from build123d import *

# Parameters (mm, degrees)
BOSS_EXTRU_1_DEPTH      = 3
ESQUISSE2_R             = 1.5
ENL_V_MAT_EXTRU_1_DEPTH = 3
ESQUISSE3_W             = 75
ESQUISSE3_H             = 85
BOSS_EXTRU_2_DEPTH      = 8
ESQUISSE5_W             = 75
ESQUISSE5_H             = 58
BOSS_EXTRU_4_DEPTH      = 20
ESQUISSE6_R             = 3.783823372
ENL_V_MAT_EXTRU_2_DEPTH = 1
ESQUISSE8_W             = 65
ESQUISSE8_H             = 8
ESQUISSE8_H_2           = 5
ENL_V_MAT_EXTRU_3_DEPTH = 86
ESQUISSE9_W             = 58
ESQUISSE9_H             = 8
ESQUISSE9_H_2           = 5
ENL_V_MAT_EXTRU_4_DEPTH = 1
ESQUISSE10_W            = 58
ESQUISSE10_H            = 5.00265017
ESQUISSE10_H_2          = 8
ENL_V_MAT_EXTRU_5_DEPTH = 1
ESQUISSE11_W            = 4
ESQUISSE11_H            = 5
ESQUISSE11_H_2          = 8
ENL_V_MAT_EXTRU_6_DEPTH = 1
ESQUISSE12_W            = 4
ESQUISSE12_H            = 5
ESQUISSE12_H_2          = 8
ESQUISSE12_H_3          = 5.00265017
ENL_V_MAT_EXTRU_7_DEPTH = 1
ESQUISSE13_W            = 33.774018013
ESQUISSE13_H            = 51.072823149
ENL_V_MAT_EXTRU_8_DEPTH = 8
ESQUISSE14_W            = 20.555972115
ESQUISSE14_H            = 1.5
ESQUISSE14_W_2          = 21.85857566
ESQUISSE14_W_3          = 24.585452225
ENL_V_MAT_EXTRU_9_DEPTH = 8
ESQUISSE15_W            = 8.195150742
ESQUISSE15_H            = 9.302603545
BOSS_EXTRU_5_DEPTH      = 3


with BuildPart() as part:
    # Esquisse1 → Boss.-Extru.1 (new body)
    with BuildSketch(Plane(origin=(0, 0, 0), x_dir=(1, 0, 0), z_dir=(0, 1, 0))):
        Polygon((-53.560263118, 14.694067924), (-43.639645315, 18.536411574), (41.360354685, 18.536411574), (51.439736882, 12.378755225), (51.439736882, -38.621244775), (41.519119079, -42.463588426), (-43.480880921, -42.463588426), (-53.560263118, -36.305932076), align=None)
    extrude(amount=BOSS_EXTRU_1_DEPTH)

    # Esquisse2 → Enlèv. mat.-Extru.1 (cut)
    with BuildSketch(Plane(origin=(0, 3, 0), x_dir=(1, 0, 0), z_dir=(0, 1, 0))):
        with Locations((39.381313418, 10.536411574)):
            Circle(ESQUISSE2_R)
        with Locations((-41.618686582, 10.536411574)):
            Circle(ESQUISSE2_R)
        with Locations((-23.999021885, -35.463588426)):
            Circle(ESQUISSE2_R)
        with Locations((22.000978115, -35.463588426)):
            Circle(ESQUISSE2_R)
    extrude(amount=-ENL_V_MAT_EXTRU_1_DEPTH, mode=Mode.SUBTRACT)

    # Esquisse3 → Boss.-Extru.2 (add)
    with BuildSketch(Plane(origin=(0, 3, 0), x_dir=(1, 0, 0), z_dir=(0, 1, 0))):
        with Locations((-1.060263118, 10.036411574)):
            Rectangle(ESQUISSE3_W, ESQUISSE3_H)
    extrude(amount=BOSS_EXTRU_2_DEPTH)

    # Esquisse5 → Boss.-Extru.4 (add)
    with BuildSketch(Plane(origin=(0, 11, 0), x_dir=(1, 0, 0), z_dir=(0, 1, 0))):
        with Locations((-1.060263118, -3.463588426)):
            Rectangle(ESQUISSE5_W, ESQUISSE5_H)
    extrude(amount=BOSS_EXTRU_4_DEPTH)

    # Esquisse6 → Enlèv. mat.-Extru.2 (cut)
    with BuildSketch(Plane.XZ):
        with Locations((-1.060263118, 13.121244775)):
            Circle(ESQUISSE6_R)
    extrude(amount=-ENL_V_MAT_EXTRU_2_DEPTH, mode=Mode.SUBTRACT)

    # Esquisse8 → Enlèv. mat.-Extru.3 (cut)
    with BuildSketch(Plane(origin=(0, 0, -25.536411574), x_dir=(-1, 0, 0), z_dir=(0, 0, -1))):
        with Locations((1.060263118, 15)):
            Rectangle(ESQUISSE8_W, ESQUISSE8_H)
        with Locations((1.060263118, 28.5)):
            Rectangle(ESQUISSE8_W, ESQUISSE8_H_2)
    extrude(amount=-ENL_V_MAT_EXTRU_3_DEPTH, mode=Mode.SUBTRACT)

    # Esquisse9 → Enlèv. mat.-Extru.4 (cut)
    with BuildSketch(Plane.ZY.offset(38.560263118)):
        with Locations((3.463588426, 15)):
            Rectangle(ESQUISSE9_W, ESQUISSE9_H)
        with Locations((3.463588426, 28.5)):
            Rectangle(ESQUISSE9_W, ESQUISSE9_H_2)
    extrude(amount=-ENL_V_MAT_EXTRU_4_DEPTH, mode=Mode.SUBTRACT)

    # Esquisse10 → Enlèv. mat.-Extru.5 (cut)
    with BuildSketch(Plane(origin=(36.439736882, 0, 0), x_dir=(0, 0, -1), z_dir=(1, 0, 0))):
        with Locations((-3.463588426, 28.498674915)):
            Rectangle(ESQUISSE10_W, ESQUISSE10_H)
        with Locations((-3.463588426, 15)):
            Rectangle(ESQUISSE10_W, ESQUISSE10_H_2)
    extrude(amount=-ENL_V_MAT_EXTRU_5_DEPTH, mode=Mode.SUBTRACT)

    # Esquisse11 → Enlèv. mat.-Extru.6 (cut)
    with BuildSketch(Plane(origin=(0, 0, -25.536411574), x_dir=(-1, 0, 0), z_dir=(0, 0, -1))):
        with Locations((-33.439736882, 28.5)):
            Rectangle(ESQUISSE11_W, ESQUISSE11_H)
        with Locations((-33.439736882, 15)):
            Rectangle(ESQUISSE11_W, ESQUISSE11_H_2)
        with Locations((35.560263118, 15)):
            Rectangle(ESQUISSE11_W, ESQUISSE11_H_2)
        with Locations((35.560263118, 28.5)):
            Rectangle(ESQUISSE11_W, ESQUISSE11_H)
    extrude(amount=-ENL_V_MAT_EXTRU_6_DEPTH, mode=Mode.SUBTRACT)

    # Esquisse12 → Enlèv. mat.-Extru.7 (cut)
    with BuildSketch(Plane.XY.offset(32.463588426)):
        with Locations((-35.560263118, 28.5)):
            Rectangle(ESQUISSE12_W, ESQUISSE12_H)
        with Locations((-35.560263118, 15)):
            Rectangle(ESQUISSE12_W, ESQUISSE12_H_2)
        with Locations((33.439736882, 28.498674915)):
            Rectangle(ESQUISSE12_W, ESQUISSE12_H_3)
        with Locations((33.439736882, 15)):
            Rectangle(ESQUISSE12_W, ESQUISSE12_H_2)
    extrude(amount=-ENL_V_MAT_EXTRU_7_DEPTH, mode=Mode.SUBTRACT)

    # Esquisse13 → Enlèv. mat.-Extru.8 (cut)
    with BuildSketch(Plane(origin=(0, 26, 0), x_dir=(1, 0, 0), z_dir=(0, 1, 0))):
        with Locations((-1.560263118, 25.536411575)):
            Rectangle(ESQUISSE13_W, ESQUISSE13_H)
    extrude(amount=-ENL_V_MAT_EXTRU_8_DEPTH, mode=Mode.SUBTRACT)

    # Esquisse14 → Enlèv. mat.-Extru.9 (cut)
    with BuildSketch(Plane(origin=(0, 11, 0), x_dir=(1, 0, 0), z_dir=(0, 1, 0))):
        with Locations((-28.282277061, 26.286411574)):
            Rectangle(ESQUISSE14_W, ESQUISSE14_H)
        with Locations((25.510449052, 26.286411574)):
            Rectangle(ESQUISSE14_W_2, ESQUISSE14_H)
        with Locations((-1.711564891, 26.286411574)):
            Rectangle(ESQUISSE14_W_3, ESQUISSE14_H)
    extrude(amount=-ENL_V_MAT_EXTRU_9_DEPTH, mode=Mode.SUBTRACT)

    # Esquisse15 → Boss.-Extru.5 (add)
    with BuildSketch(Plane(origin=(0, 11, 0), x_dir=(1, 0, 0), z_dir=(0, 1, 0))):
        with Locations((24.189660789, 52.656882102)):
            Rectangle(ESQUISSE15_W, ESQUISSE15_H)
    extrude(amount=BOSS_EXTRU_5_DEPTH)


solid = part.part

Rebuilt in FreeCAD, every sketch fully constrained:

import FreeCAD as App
import Part
import Sketcher

V = App.Vector
Q = App.Units.Quantity


def add_polygon(sketch, points):
    """Adds a closed chain of lines whose ends are joined by coincident constraints."""
    first, n = sketch.GeometryCount, len(points)
    for a, b in zip(points, points[1:] + points[:1]):
        sketch.addGeometry(Part.LineSegment(App.Vector(*a, 0), App.Vector(*b, 0)), False)
    for i in range(n):
        sketch.addConstraint(Sketcher.Constraint("Coincident", first + i, 2, first + (i + 1) % n, 1))

doc = App.newDocument("Part")
params = doc.addObject("Spreadsheet::Sheet", "Params")
for row, (alias, value) in enumerate([
    ("sketch1_width", "85 mm"),
    ("sketch1_height", "51 mm"),
    ("pad1_length", "3 mm"),
    ("sketch2_diameter", "3 mm"),
    ("pocket1_length", "3 mm"),
    ("sketch3_width", "75 mm"),
    ("sketch3_height", "85 mm"),
    ("pad2_length", "8 mm"),
    ("sketch4_width", "75 mm"),
    ("sketch4_height", "58 mm"),
    ("pad3_length", "20 mm"),
    ("pocket2_length", "1 mm"),
    ("sketch6_width", "65 mm"),
    ("sketch6_height", "8 mm"),
    ("sketch6_height2", "5 mm"),
    ("pocket3_length", "86 mm"),
    ("sketch7_width", "8 mm"),
    ("sketch7_width2", "5 mm"),
    ("sketch7_height", "58 mm"),
    ("pocket4_length", "1 mm"),
    ("sketch8_width", "8 mm"),
    ("sketch8_height", "58 mm"),
    ("pocket5_length", "1 mm"),
    ("sketch9_width", "4 mm"),
    ("sketch9_height", "5 mm"),
    ("sketch9_height2", "8 mm"),
    ("pocket6_length", "1 mm"),
    ("sketch10_width", "4 mm"),
    ("sketch10_height", "5 mm"),
    ("sketch10_height2", "8 mm"),
    ("pocket7_length", "1 mm"),
    ("pocket8_length", "8 mm"),
    ("sketch12_height", "1.5 mm"),
    ("pocket9_length", "8 mm"),
    ("pad4_length", "3 mm"),
], start=1):
    params.set(f"A{row}", alias)
    params.set(f"B{row}", "=" + value)
    params.setAlias(f"B{row}", alias)

body = doc.addObject("PartDesign::Body", "Body")

# Sketch on XZ plane
sketch1 = body.newObject("Sketcher::SketchObject", "Sketch")
sketch1.AttachmentSupport = (doc.getObject("XZ_Plane"), [""])
sketch1.MapMode = "FlatFace"
add_polygon(sketch1, [(-44, -19), (-54, -15), (-54, 36), (-43, 42), (42, 42), (51, 39), (51, -12), (41, -19)])  # lines 0-7
sketch1.addConstraint(Sketcher.Constraint("Vertical", 1))
sketch1.addConstraint(Sketcher.Constraint("Horizontal", 3))
sketch1.addConstraint(Sketcher.Constraint("Vertical", 5))
sketch1.addConstraint(Sketcher.Constraint("Horizontal", 7))
sketch1.addConstraint(Sketcher.Constraint("Parallel", 0, 4))
sketch1.addConstraint(Sketcher.Constraint("Parallel", 2, 6))
sketch1.addConstraint(Sketcher.Constraint("Equal", 3, 7))
sketch1.addConstraint(Sketcher.Constraint("Equal", 1, 5))
sketch1.addConstraint(Sketcher.Constraint("DistanceX", 3, 1, 3, 2, Q("85 mm")))
sketch1.addConstraint(Sketcher.Constraint("DistanceY", 1, 1, 1, 2, Q("51 mm")))
sketch1.addConstraint(Sketcher.Constraint("DistanceX", 1, 2, 4, 2, Q("105 mm")))
sketch1.addConstraint(Sketcher.Constraint("DistanceY", 6, 2, 3, 2, Q("61 mm")))
sketch1.addConstraint(Sketcher.Constraint("DistanceX", 2, 2, -1, 1, Q("43.480881 mm")))
sketch1.addConstraint(Sketcher.Constraint("DistanceY", -1, 1, 2, 2, Q("42.463588 mm")))
sketch1.addConstraint(Sketcher.Constraint("Distance", 0, Q("10.638715 mm")))
sketch1.addConstraint(Sketcher.Constraint("Distance", 2, Q("11.811464 mm")))
sketch1.setExpression("Constraints[16]", "Params.sketch1_width")
sketch1.setExpression("Constraints[17]", "Params.sketch1_height")
pad1 = body.newObject("PartDesign::Pad", "Pad")
pad1.Profile = sketch1
pad1.setExpression("Length", "Params.pad1_length")
pad1.Reversed = True

# Sketch on XZ plane
sketch2 = body.newObject("Sketcher::SketchObject", "Sketch001")
sketch2.AttachmentSupport = (doc.getObject("XZ_Plane"), [""])
sketch2.MapMode = "FlatFace"
sketch2.AttachmentOffset = App.Placement(V(0, 0, -3), App.Rotation())
sketch2.addGeometry(Part.Circle(V(39.4, -10.5, 0), V(0, 0, 1), 1.5), False)
sketch2.addGeometry(Part.Circle(V(-41.6, -10.5, 0), V(0, 0, 1), 1.5), False)
sketch2.addGeometry(Part.Circle(V(-24, 35.5, 0), V(0, 0, 1), 1.5), False)
sketch2.addGeometry(Part.Circle(V(22, 35.5, 0), V(0, 0, 1), 1.5), False)
sketch2.addConstraint(Sketcher.Constraint("Equal", 0, 1))
sketch2.addConstraint(Sketcher.Constraint("Equal", 1, 2))
sketch2.addConstraint(Sketcher.Constraint("Equal", 2, 3))
sketch2.addConstraint(Sketcher.Constraint("Horizontal", 0, 3, 1, 3))
sketch2.addConstraint(Sketcher.Constraint("Horizontal", 2, 3, 3, 3))
sketch2.addConstraint(Sketcher.Constraint("Diameter", 0, Q("3 mm")))
sketch2.addConstraint(Sketcher.Constraint("DistanceX", 1, 3, 0, 3, Q("81 mm")))
sketch2.addConstraint(Sketcher.Constraint("DistanceY", 1, 3, 2, 3, Q("46 mm")))
sketch2.addConstraint(Sketcher.Constraint("DistanceX", 2, 3, 3, 3, Q("46 mm")))
sketch2.addConstraint(Sketcher.Constraint("DistanceY", 0, 3, -1, 1, Q("10.536412 mm")))
sketch2.addConstraint(Sketcher.Constraint("DistanceX", 2, 3, -1, 1, Q("23.999022 mm")))
sketch2.addConstraint(Sketcher.Constraint("DistanceX", -1, 1, 0, 3, Q("39.381313 mm")))
sketch2.setExpression("Constraints[5]", "Params.sketch2_diameter")
pocket1 = body.newObject("PartDesign::Pocket", "Pocket")
pocket1.Profile = sketch2
pocket1.setExpression("Length", "Params.pocket1_length")
pocket1.Reversed = True

# Sketch on XZ plane
sketch3 = body.newObject("Sketcher::SketchObject", "Sketch002")
sketch3.AttachmentSupport = (doc.getObject("XZ_Plane"), [""])
sketch3.MapMode = "FlatFace"
sketch3.AttachmentOffset = App.Placement(V(0, 0, -3), App.Rotation())
add_polygon(sketch3, [(-39, -53), (-39, 32), (36, 32), (36, -53)])  # lines 0-3
sketch3.addConstraint(Sketcher.Constraint("Vertical", 0))
sketch3.addConstraint(Sketcher.Constraint("Horizontal", 1))
sketch3.addConstraint(Sketcher.Constraint("Vertical", 2))
sketch3.addConstraint(Sketcher.Constraint("Horizontal", 3))
sketch3.addConstraint(Sketcher.Constraint("DistanceX", 1, 1, 1, 2, Q("75 mm")))
sketch3.addConstraint(Sketcher.Constraint("DistanceY", 0, 1, 0, 2, Q("85 mm")))
sketch3.addConstraint(Sketcher.Constraint("DistanceY", -1, 1, 0, 2, Q("32.463588 mm")))
sketch3.addConstraint(Sketcher.Constraint("DistanceX", 0, 2, -1, 1, Q("38.560263 mm")))
sketch3.setExpression("Constraints[8]", "Params.sketch3_width")
sketch3.setExpression("Constraints[9]", "Params.sketch3_height")
pad2 = body.newObject("PartDesign::Pad", "Pad001")
pad2.Profile = sketch3
pad2.setExpression("Length", "Params.pad2_length")
pad2.Reversed = True

# Sketch on XZ plane
sketch4 = body.newObject("Sketcher::SketchObject", "Sketch003")
sketch4.AttachmentSupport = (doc.getObject("XZ_Plane"), [""])
sketch4.MapMode = "FlatFace"
sketch4.AttachmentOffset = App.Placement(V(0, 0, -11), App.Rotation())
add_polygon(sketch4, [(-39, -26), (-39, 32), (36, 32), (36, -26)])  # lines 0-3
sketch4.addConstraint(Sketcher.Constraint("Vertical", 0))
sketch4.addConstraint(Sketcher.Constraint("Horizontal", 1))
sketch4.addConstraint(Sketcher.Constraint("Vertical", 2))
sketch4.addConstraint(Sketcher.Constraint("Horizontal", 3))
sketch4.addConstraint(Sketcher.Constraint("DistanceX", 1, 1, 1, 2, Q("75 mm")))
sketch4.addConstraint(Sketcher.Constraint("DistanceY", 0, 1, 0, 2, Q("58 mm")))
sketch4.addConstraint(Sketcher.Constraint("DistanceY", -1, 1, 0, 2, Q("32.463588 mm")))
sketch4.addConstraint(Sketcher.Constraint("DistanceX", 0, 2, -1, 1, Q("38.560263 mm")))
sketch4.setExpression("Constraints[8]", "Params.sketch4_width")
sketch4.setExpression("Constraints[9]", "Params.sketch4_height")
pad3 = body.newObject("PartDesign::Pad", "Pad002")
pad3.Profile = sketch4
pad3.setExpression("Length", "Params.pad3_length")
pad3.Reversed = True

# Sketch on XZ plane
sketch5 = body.newObject("Sketcher::SketchObject", "Sketch004")
sketch5.AttachmentSupport = (doc.getObject("XZ_Plane"), [""])
sketch5.MapMode = "FlatFace"
sketch5.addGeometry(Part.Circle(V(-1.1, 13.1, 0), V(0, 0, 1), 3.8), False)
sketch5.addConstraint(Sketcher.Constraint("Diameter", 0, Q("7.567647 mm")))
sketch5.addConstraint(Sketcher.Constraint("DistanceX", 0, 3, -1, 1, Q("1.060263 mm")))
sketch5.addConstraint(Sketcher.Constraint("DistanceY", -1, 1, 0, 3, Q("13.121245 mm")))
pocket2 = body.newObject("PartDesign::Pocket", "Pocket001")
pocket2.Profile = sketch5
pocket2.setExpression("Length", "Params.pocket2_length")

# Sketch on XY plane
sketch6 = body.newObject("Sketcher::SketchObject", "Sketch005")
sketch6.AttachmentSupport = (doc.getObject("XY_Plane"), [""])
sketch6.MapMode = "FlatFace"
sketch6.AttachmentOffset = App.Placement(V(0, 0, -25.536412), App.Rotation())
add_polygon(sketch6, [(31, 19), (31, 11), (-34, 11), (-34, 19)])  # lines 0-3
add_polygon(sketch6, [(31, 31), (31, 26), (-34, 26), (-34, 31)])  # lines 4-7
sketch6.addConstraint(Sketcher.Constraint("Vertical", 0))
sketch6.addConstraint(Sketcher.Constraint("Horizontal", 1))
sketch6.addConstraint(Sketcher.Constraint("Vertical", 2))
sketch6.addConstraint(Sketcher.Constraint("Horizontal", 3))
sketch6.addConstraint(Sketcher.Constraint("Vertical", 4))
sketch6.addConstraint(Sketcher.Constraint("Horizontal", 5))
sketch6.addConstraint(Sketcher.Constraint("Vertical", 6))
sketch6.addConstraint(Sketcher.Constraint("Horizontal", 7))
sketch6.addConstraint(Sketcher.Constraint("Vertical", 3, 2, 4, 2))
sketch6.addConstraint(Sketcher.Constraint("Vertical", 2, 2, 5, 2))
sketch6.addConstraint(Sketcher.Constraint("DistanceX", 1, 2, 1, 1, Q("65 mm")))
sketch6.addConstraint(Sketcher.Constraint("DistanceY", 0, 2, 0, 1, Q("8 mm")))
sketch6.addConstraint(Sketcher.Constraint("DistanceY", 4, 2, 4, 1, Q("5 mm")))
sketch6.addConstraint(Sketcher.Constraint("DistanceY", -1, 1, 0, 2, Q("11 mm")))
sketch6.addConstraint(Sketcher.Constraint("DistanceY", -1, 1, 4, 2, Q("26 mm")))
sketch6.addConstraint(Sketcher.Constraint("DistanceX", -1, 1, 0, 2, Q("31.439737 mm")))
sketch6.setExpression("Constraints[18]", "Params.sketch6_width")
sketch6.setExpression("Constraints[19]", "Params.sketch6_height")
sketch6.setExpression("Constraints[20]", "Params.sketch6_height2")
pocket3 = body.newObject("PartDesign::Pocket", "Pocket002")
pocket3.Profile = sketch6
pocket3.setExpression("Length", "Params.pocket3_length")
pocket3.Reversed = True

# Sketch on YZ plane
sketch7 = body.newObject("Sketcher::SketchObject", "Sketch006")
sketch7.AttachmentSupport = (doc.getObject("YZ_Plane"), [""])
sketch7.MapMode = "FlatFace"
sketch7.AttachmentOffset = App.Placement(V(0, 0, -38.560263), App.Rotation())
add_polygon(sketch7, [(19, -26), (11, -26), (11, 32), (19, 32)])  # lines 0-3
add_polygon(sketch7, [(31, -26), (26, -26), (26, 32), (31, 32)])  # lines 4-7
sketch7.addConstraint(Sketcher.Constraint("Horizontal", 0))
sketch7.addConstraint(Sketcher.Constraint("Vertical", 1))
sketch7.addConstraint(Sketcher.Constraint("Horizontal", 2))
sketch7.addConstraint(Sketcher.Constraint("Vertical", 3))
sketch7.addConstraint(Sketcher.Constraint("Horizontal", 4))
sketch7.addConstraint(Sketcher.Constraint("Vertical", 5))
sketch7.addConstraint(Sketcher.Constraint("Horizontal", 6))
sketch7.addConstraint(Sketcher.Constraint("Vertical", 7))
sketch7.addConstraint(Sketcher.Constraint("Horizontal", 3, 2, 4, 2))
sketch7.addConstraint(Sketcher.Constraint("Horizontal", 2, 2, 5, 2))
sketch7.addConstraint(Sketcher.Constraint("DistanceX", 0, 2, 0, 1, Q("8 mm")))
sketch7.addConstraint(Sketcher.Constraint("DistanceX", 4, 2, 4, 1, Q("5 mm")))
sketch7.addConstraint(Sketcher.Constraint("DistanceY", 1, 1, 1, 2, Q("58 mm")))
sketch7.addConstraint(Sketcher.Constraint("DistanceX", -1, 1, 0, 2, Q("11 mm")))
sketch7.addConstraint(Sketcher.Constraint("DistanceX", -1, 1, 4, 2, Q("26 mm")))
sketch7.addConstraint(Sketcher.Constraint("DistanceY", 0, 2, -1, 1, Q("25.536412 mm")))
sketch7.setExpression("Constraints[18]", "Params.sketch7_width")
sketch7.setExpression("Constraints[19]", "Params.sketch7_width2")
sketch7.setExpression("Constraints[20]", "Params.sketch7_height")
pocket4 = body.newObject("PartDesign::Pocket", "Pocket003")
pocket4.Profile = sketch7
pocket4.setExpression("Length", "Params.pocket4_length")
pocket4.Reversed = True

# Sketch on YZ plane
sketch8 = body.newObject("Sketcher::SketchObject", "Sketch007")
sketch8.AttachmentSupport = (doc.getObject("YZ_Plane"), [""])
sketch8.MapMode = "FlatFace"
sketch8.AttachmentOffset = App.Placement(V(0, 0, 36.439737), App.Rotation())
add_polygon(sketch8, [(31, 32), (26, 32), (26, -26), (31, -26)])  # lines 0-3
add_polygon(sketch8, [(19, 32), (11, 32), (11, -26), (19, -26)])  # lines 4-7
sketch8.addConstraint(Sketcher.Constraint("Horizontal", 0))
sketch8.addConstraint(Sketcher.Constraint("Vertical", 1))
sketch8.addConstraint(Sketcher.Constraint("Horizontal", 2))
sketch8.addConstraint(Sketcher.Constraint("Vertical", 3))
sketch8.addConstraint(Sketcher.Constraint("Horizontal", 4))
sketch8.addConstraint(Sketcher.Constraint("Vertical", 5))
sketch8.addConstraint(Sketcher.Constraint("Horizontal", 6))
sketch8.addConstraint(Sketcher.Constraint("Vertical", 7))
sketch8.addConstraint(Sketcher.Constraint("Horizontal", 3, 2, 4, 2))
sketch8.addConstraint(Sketcher.Constraint("Horizontal", 2, 2, 5, 2))
sketch8.addConstraint(Sketcher.Constraint("DistanceX", 4, 2, 4, 1, Q("8 mm")))
sketch8.addConstraint(Sketcher.Constraint("DistanceY", 1, 2, 1, 1, Q("58 mm")))
sketch8.addConstraint(Sketcher.Constraint("DistanceX", -1, 1, 2, 2, Q("31 mm")))
sketch8.addConstraint(Sketcher.Constraint("DistanceX", -1, 1, 4, 2, Q("11 mm")))
sketch8.addConstraint(Sketcher.Constraint("DistanceX", 0, 2, 0, 1, Q("5.00265 mm")))
sketch8.addConstraint(Sketcher.Constraint("DistanceY", -1, 1, 0, 2, Q("32.463588 mm")))
sketch8.setExpression("Constraints[18]", "Params.sketch8_width")
sketch8.setExpression("Constraints[19]", "Params.sketch8_height")
pocket5 = body.newObject("PartDesign::Pocket", "Pocket004")
pocket5.Profile = sketch8
pocket5.setExpression("Length", "Params.pocket5_length")

# Sketch on XY plane
sketch9 = body.newObject("Sketcher::SketchObject", "Sketch008")
sketch9.AttachmentSupport = (doc.getObject("XY_Plane"), [""])
sketch9.MapMode = "FlatFace"
sketch9.AttachmentOffset = App.Placement(V(0, 0, -25.536412), App.Rotation())
add_polygon(sketch9, [(35.4, 31), (35.4, 26), (31.4, 26), (31.4, 31)])  # lines 0-3
add_polygon(sketch9, [(35.4, 19), (35.4, 11), (31.4, 11), (31.4, 19)])  # lines 4-7
add_polygon(sketch9, [(-33.6, 19), (-33.6, 11), (-37.6, 11), (-37.6, 19)])  # lines 8-11
add_polygon(sketch9, [(-33.6, 31), (-33.6, 26), (-37.6, 26), (-37.6, 31)])  # lines 12-15
sketch9.addConstraint(Sketcher.Constraint("Vertical", 0))
sketch9.addConstraint(Sketcher.Constraint("Horizontal", 1))
sketch9.addConstraint(Sketcher.Constraint("Vertical", 2))
sketch9.addConstraint(Sketcher.Constraint("Horizontal", 3))
sketch9.addConstraint(Sketcher.Constraint("Vertical", 4))
sketch9.addConstraint(Sketcher.Constraint("Horizontal", 5))
sketch9.addConstraint(Sketcher.Constraint("Vertical", 6))
sketch9.addConstraint(Sketcher.Constraint("Horizontal", 7))
sketch9.addConstraint(Sketcher.Constraint("Vertical", 8))
sketch9.addConstraint(Sketcher.Constraint("Horizontal", 9))
sketch9.addConstraint(Sketcher.Constraint("Vertical", 10))
sketch9.addConstraint(Sketcher.Constraint("Horizontal", 11))
sketch9.addConstraint(Sketcher.Constraint("Vertical", 12))
sketch9.addConstraint(Sketcher.Constraint("Horizontal", 13))
sketch9.addConstraint(Sketcher.Constraint("Vertical", 14))
sketch9.addConstraint(Sketcher.Constraint("Horizontal", 15))
sketch9.addConstraint(Sketcher.Constraint("Horizontal", 5, 2, 8, 2))
sketch9.addConstraint(Sketcher.Constraint("Horizontal", 7, 2, 10, 2))
sketch9.addConstraint(Sketcher.Constraint("Horizontal", 1, 2, 12, 2))
sketch9.addConstraint(Sketcher.Constraint("Horizontal", 3, 2, 14, 2))
sketch9.addConstraint(Sketcher.Constraint("Vertical", 3, 2, 4, 2))
sketch9.addConstraint(Sketcher.Constraint("Vertical", 2, 2, 5, 2))
sketch9.addConstraint(Sketcher.Constraint("Vertical", 11, 2, 12, 2))
sketch9.addConstraint(Sketcher.Constraint("Vertical", 10, 2, 13, 2))
sketch9.addConstraint(Sketcher.Constraint("Equal", 7, 9))
sketch9.addConstraint(Sketcher.Constraint("DistanceX", 1, 2, 1, 1, Q("4 mm")))
sketch9.addConstraint(Sketcher.Constraint("DistanceY", 0, 2, 0, 1, Q("5 mm")))
sketch9.addConstraint(Sketcher.Constraint("DistanceY", 4, 2, 4, 1, Q("8 mm")))
sketch9.addConstraint(Sketcher.Constraint("DistanceY", -1, 1, 0, 2, Q("26 mm")))
sketch9.addConstraint(Sketcher.Constraint("DistanceY", -1, 1, 4, 2, Q("11 mm")))
sketch9.addConstraint(Sketcher.Constraint("DistanceX", 8, 2, 5, 2, Q("65 mm")))
sketch9.addConstraint(Sketcher.Constraint("DistanceX", -1, 1, 0, 2, Q("35.439737 mm")))
sketch9.setExpression("Constraints[41]", "Params.sketch9_width")
sketch9.setExpression("Constraints[42]", "Params.sketch9_height")
sketch9.setExpression("Constraints[43]", "Params.sketch9_height2")
pocket6 = body.newObject("PartDesign::Pocket", "Pocket005")
pocket6.Profile = sketch9
pocket6.setExpression("Length", "Params.pocket6_length")
pocket6.Reversed = True

# Sketch on XY plane
sketch10 = body.newObject("Sketcher::SketchObject", "Sketch009")
sketch10.AttachmentSupport = (doc.getObject("XY_Plane"), [""])
sketch10.MapMode = "FlatFace"
sketch10.AttachmentOffset = App.Placement(V(0, 0, 32.463588), App.Rotation())
add_polygon(sketch10, [(-37.6, 31), (-37.6, 26), (-33.6, 26), (-33.6, 31)])  # lines 0-3
add_polygon(sketch10, [(-37.6, 19), (-37.6, 11), (-33.6, 11), (-33.6, 19)])  # lines 4-7
add_polygon(sketch10, [(31.4, 31), (31.4, 26), (35.4, 26), (35.4, 31)])  # lines 8-11
add_polygon(sketch10, [(31.4, 19), (31.4, 11), (35.4, 11), (35.4, 19)])  # lines 12-15
sketch10.addConstraint(Sketcher.Constraint("Vertical", 0))
sketch10.addConstraint(Sketcher.Constraint("Horizontal", 1))
sketch10.addConstraint(Sketcher.Constraint("Vertical", 2))
sketch10.addConstraint(Sketcher.Constraint("Horizontal", 3))
sketch10.addConstraint(Sketcher.Constraint("Vertical", 4))
sketch10.addConstraint(Sketcher.Constraint("Horizontal", 5))
sketch10.addConstraint(Sketcher.Constraint("Vertical", 6))
sketch10.addConstraint(Sketcher.Constraint("Horizontal", 7))
sketch10.addConstraint(Sketcher.Constraint("Vertical", 8))
sketch10.addConstraint(Sketcher.Constraint("Horizontal", 9))
sketch10.addConstraint(Sketcher.Constraint("Vertical", 10))
sketch10.addConstraint(Sketcher.Constraint("Horizontal", 11))
sketch10.addConstraint(Sketcher.Constraint("Vertical", 12))
sketch10.addConstraint(Sketcher.Constraint("Horizontal", 13))
sketch10.addConstraint(Sketcher.Constraint("Vertical", 14))
sketch10.addConstraint(Sketcher.Constraint("Horizontal", 15))
sketch10.addConstraint(Sketcher.Constraint("Horizontal", 3, 2, 10, 2))
sketch10.addConstraint(Sketcher.Constraint("Horizontal", 5, 2, 12, 2))
sketch10.addConstraint(Sketcher.Constraint("Horizontal", 7, 2, 14, 2))
sketch10.addConstraint(Sketcher.Constraint("Vertical", 3, 2, 4, 2))
sketch10.addConstraint(Sketcher.Constraint("Vertical", 2, 2, 5, 2))
sketch10.addConstraint(Sketcher.Constraint("Vertical", 11, 2, 12, 2))
sketch10.addConstraint(Sketcher.Constraint("Vertical", 10, 2, 13, 2))
sketch10.addConstraint(Sketcher.Constraint("Equal", 7, 9))
sketch10.addConstraint(Sketcher.Constraint("DistanceX", 1, 1, 1, 2, Q("4 mm")))
sketch10.addConstraint(Sketcher.Constraint("DistanceY", 0, 2, 0, 1, Q("5 mm")))
sketch10.addConstraint(Sketcher.Constraint("DistanceY", 4, 2, 4, 1, Q("8 mm")))
sketch10.addConstraint(Sketcher.Constraint("DistanceY", -1, 1, 0, 2, Q("26 mm")))
sketch10.addConstraint(Sketcher.Constraint("DistanceY", -1, 1, 4, 2, Q("11 mm")))
sketch10.addConstraint(Sketcher.Constraint("DistanceX", 1, 2, 8, 2, Q("65 mm")))
sketch10.addConstraint(Sketcher.Constraint("DistanceY", 8, 2, 8, 1, Q("5.00265 mm")))
sketch10.addConstraint(Sketcher.Constraint("DistanceX", 0, 2, -1, 1, Q("37.560263 mm")))
sketch10.setExpression("Constraints[40]", "Params.sketch10_width")
sketch10.setExpression("Constraints[41]", "Params.sketch10_height")
sketch10.setExpression("Constraints[42]", "Params.sketch10_height2")
pocket7 = body.newObject("PartDesign::Pocket", "Pocket006")
pocket7.Profile = sketch10
pocket7.setExpression("Length", "Params.pocket7_length")

# Sketch on XZ plane
sketch11 = body.newObject("Sketcher::SketchObject", "Sketch010")
sketch11.AttachmentSupport = (doc.getObject("XZ_Plane"), [""])
sketch11.MapMode = "FlatFace"
sketch11.AttachmentOffset = App.Placement(V(0, 0, -26), App.Rotation())
add_polygon(sketch11, [(-18, -51), (-18, 0), (15, 0), (15, -51)])  # lines 0-3
sketch11.addConstraint(Sketcher.Constraint("Vertical", 0))
sketch11.addConstraint(Sketcher.Constraint("Horizontal", 1))
sketch11.addConstraint(Sketcher.Constraint("Vertical", 2))
sketch11.addConstraint(Sketcher.Constraint("Horizontal", 3))
sketch11.addConstraint(Sketcher.Constraint("PointOnObject", 0, 2, -1))
sketch11.addConstraint(Sketcher.Constraint("DistanceX", 1, 1, 1, 2, Q("33.774018 mm")))
sketch11.addConstraint(Sketcher.Constraint("DistanceY", 0, 1, 0, 2, Q("51.072823 mm")))
sketch11.addConstraint(Sketcher.Constraint("DistanceX", 0, 2, -1, 1, Q("18.447272 mm")))
pocket8 = body.newObject("PartDesign::Pocket", "Pocket007")
pocket8.Profile = sketch11
pocket8.setExpression("Length", "Params.pocket8_length")
pocket8.Reversed = True

# Sketch on XZ plane
sketch12 = body.newObject("Sketcher::SketchObject", "Sketch011")
sketch12.AttachmentSupport = (doc.getObject("XZ_Plane"), [""])
sketch12.MapMode = "FlatFace"
sketch12.AttachmentOffset = App.Placement(V(0, 0, -11), App.Rotation())
add_polygon(sketch12, [(-38.6, -27), (-38.6, -25.5), (-18, -25.5), (-18, -27)])  # lines 0-3
add_polygon(sketch12, [(14.6, -27), (14.6, -25.5), (36.4, -25.5), (36.4, -27)])  # lines 4-7
add_polygon(sketch12, [(-14, -27), (-14, -25.5), (10.6, -25.5), (10.6, -27)])  # lines 8-11
sketch12.addConstraint(Sketcher.Constraint("Vertical", 0))
sketch12.addConstraint(Sketcher.Constraint("Horizontal", 1))
sketch12.addConstraint(Sketcher.Constraint("Vertical", 2))
sketch12.addConstraint(Sketcher.Constraint("Horizontal", 3))
sketch12.addConstraint(Sketcher.Constraint("Vertical", 4))
sketch12.addConstraint(Sketcher.Constraint("Horizontal", 5))
sketch12.addConstraint(Sketcher.Constraint("Vertical", 6))
sketch12.addConstraint(Sketcher.Constraint("Horizontal", 7))
sketch12.addConstraint(Sketcher.Constraint("Vertical", 8))
sketch12.addConstraint(Sketcher.Constraint("Horizontal", 9))
sketch12.addConstraint(Sketcher.Constraint("Vertical", 10))
sketch12.addConstraint(Sketcher.Constraint("Horizontal", 11))
sketch12.addConstraint(Sketcher.Constraint("Horizontal", 1, 2, 4, 2))
sketch12.addConstraint(Sketcher.Constraint("Horizontal", 3, 2, 6, 2))
sketch12.addConstraint(Sketcher.Constraint("Horizontal", 5, 2, 8, 2))
sketch12.addConstraint(Sketcher.Constraint("Horizontal", 7, 2, 10, 2))
sketch12.addConstraint(Sketcher.Constraint("DistanceY", 0, 1, 0, 2, Q("1.5 mm")))
sketch12.addConstraint(Sketcher.Constraint("DistanceX", 0, 2, 5, 2, Q("75 mm")))
sketch12.addConstraint(Sketcher.Constraint("DistanceX", 1, 2, 8, 2, Q("4 mm")))
sketch12.addConstraint(Sketcher.Constraint("DistanceX", 9, 2, 4, 2, Q("4 mm")))
sketch12.addConstraint(Sketcher.Constraint("DistanceX", 1, 1, 1, 2, Q("20.555972 mm")))
sketch12.addConstraint(Sketcher.Constraint("DistanceX", 5, 1, 5, 2, Q("21.858576 mm")))
sketch12.addConstraint(Sketcher.Constraint("DistanceY", 0, 2, -1, 1, Q("25.536412 mm")))
sketch12.addConstraint(Sketcher.Constraint("DistanceX", 1, 2, -1, 1, Q("18.004291 mm")))
sketch12.setExpression("Constraints[28]", "Params.sketch12_height")
pocket9 = body.newObject("PartDesign::Pocket", "Pocket008")
pocket9.Profile = sketch12
pocket9.setExpression("Length", "Params.pocket9_length")
pocket9.Reversed = True

# Sketch on XZ plane
sketch13 = body.newObject("Sketcher::SketchObject", "Sketch012")
sketch13.AttachmentSupport = (doc.getObject("XZ_Plane"), [""])
sketch13.MapMode = "FlatFace"
sketch13.AttachmentOffset = App.Placement(V(0, 0, -11), App.Rotation())
add_polygon(sketch13, [(20, -57), (20, -48), (28, -48), (28, -57)])  # lines 0-3
sketch13.addConstraint(Sketcher.Constraint("Vertical", 0))
sketch13.addConstraint(Sketcher.Constraint("Horizontal", 1))
sketch13.addConstraint(Sketcher.Constraint("Vertical", 2))
sketch13.addConstraint(Sketcher.Constraint("Horizontal", 3))
sketch13.addConstraint(Sketcher.Constraint("DistanceX", 1, 1, 1, 2, Q("8.195151 mm")))
sketch13.addConstraint(Sketcher.Constraint("DistanceY", 0, 1, 0, 2, Q("9.302604 mm")))
sketch13.addConstraint(Sketcher.Constraint("DistanceY", 0, 2, -1, 1, Q("48.00558 mm")))
sketch13.addConstraint(Sketcher.Constraint("DistanceX", -1, 1, 0, 2, Q("20.092085 mm")))
pad4 = body.newObject("PartDesign::Pad", "Pad003")
pad4.Profile = sketch13
pad4.setExpression("Length", "Params.pad4_length")
pad4.Reversed = True

doc.recompute()
